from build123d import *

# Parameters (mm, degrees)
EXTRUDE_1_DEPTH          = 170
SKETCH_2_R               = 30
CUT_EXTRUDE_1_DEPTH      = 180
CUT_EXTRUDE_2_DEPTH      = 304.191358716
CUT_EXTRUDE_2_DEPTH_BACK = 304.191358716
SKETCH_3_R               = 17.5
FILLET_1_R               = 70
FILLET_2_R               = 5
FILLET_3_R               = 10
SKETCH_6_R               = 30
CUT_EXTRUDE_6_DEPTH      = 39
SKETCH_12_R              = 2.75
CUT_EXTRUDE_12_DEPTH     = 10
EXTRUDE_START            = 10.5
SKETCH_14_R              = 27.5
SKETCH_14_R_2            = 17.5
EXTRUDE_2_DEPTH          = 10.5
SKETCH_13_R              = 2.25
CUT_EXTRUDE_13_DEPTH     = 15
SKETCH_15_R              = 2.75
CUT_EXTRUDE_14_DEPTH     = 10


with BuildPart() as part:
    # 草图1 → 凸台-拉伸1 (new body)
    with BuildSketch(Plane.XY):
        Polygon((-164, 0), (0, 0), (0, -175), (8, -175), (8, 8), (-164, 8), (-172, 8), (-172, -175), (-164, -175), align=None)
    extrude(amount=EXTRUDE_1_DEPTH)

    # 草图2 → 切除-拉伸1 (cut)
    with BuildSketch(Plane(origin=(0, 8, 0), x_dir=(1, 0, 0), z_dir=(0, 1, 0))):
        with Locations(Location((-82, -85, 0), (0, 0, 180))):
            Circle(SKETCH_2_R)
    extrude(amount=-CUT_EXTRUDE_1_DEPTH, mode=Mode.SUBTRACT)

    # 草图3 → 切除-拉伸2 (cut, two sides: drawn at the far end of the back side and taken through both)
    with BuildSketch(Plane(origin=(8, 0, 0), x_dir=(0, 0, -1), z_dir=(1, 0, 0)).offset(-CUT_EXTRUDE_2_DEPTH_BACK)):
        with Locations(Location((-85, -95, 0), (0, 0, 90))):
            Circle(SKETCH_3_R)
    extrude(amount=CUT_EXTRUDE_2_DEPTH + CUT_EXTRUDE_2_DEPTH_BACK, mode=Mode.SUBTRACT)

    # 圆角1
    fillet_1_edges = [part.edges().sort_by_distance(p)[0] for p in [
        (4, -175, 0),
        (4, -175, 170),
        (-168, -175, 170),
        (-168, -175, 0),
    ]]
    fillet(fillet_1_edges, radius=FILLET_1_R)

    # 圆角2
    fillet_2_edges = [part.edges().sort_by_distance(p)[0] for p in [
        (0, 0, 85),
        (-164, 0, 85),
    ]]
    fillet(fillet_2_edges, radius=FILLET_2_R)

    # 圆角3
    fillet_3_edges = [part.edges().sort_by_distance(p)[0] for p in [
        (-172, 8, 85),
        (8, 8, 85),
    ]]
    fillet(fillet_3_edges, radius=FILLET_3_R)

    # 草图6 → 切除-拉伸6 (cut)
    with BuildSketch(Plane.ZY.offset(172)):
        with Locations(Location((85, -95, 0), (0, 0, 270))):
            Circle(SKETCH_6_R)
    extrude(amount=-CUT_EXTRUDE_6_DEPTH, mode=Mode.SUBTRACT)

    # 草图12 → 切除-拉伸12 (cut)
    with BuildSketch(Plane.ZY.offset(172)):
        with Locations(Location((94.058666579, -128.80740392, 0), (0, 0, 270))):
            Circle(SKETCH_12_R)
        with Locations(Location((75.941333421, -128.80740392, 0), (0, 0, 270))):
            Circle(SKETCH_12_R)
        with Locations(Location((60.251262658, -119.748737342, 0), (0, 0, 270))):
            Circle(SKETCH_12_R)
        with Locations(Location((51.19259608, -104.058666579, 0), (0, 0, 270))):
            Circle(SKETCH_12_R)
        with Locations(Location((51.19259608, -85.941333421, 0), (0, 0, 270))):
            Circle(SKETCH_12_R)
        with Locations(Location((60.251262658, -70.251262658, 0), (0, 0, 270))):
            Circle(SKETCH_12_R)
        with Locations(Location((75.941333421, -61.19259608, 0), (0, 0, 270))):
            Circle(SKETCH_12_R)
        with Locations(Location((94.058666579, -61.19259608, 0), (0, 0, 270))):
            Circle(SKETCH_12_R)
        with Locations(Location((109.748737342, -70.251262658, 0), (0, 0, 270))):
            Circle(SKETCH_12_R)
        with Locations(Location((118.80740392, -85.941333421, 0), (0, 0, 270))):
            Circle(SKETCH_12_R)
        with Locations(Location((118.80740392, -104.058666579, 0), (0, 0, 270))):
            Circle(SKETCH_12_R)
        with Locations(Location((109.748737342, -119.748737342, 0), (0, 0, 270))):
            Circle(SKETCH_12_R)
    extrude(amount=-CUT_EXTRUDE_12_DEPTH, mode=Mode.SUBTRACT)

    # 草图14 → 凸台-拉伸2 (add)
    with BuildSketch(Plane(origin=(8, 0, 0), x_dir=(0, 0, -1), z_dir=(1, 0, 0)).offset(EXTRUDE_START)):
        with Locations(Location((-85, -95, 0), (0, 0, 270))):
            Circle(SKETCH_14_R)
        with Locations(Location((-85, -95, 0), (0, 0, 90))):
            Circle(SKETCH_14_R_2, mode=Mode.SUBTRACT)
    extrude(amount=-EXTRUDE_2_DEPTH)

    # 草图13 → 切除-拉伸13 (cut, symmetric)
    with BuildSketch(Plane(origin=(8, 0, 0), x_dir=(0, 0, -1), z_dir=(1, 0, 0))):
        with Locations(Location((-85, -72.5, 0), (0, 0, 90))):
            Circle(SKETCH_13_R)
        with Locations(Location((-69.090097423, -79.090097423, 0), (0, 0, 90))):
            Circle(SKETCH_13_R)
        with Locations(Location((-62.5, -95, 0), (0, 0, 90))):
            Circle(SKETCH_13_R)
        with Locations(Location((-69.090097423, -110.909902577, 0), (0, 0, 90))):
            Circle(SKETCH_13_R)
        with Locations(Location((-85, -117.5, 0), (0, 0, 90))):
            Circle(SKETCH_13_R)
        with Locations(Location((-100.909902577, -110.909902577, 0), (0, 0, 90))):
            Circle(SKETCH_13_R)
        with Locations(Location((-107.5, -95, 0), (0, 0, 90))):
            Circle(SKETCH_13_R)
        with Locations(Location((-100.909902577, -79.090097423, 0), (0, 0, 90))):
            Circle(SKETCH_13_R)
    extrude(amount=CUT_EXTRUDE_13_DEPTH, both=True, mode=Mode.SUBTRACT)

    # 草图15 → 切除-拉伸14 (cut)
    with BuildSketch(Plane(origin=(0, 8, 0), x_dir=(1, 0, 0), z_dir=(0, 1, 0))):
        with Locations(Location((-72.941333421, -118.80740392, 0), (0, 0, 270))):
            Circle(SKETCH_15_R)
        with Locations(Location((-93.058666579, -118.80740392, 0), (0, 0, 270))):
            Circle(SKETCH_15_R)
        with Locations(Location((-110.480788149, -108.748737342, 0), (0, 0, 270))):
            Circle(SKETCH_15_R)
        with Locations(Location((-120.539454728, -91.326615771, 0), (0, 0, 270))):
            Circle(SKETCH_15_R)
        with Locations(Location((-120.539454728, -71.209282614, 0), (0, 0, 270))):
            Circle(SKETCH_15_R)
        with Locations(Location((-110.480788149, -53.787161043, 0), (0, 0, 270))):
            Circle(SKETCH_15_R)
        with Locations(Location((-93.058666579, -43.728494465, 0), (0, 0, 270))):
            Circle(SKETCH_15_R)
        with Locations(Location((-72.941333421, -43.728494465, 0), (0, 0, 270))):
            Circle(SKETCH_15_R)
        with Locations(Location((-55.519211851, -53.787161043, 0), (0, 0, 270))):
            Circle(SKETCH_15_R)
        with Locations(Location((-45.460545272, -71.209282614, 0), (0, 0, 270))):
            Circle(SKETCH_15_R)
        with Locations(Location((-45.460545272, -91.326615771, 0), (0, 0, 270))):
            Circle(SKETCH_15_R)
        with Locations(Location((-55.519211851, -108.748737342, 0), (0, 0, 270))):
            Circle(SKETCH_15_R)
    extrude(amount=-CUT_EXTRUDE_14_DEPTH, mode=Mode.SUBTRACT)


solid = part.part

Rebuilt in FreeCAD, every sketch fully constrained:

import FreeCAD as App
import Part
import Sketcher


def edges_at(feature, points):
    """Names of the edges that pass closest to the given points."""
    edges = feature.Shape.Edges
    near = lambda p: min(range(len(edges)), key=lambda i: edges[i].distToShape(Part.Vertex(*p))[0])
    return sorted({f"Edge{near(p) + 1}" for p in points})

doc = App.newDocument("Part")
body = doc.addObject("PartDesign::Body", "Body")

# Sketch on XY plane
sketch1 = body.newObject("Sketcher::SketchObject", "Sketch")
sketch1.AttachmentSupport = (doc.getObject("XY_Plane"), [""])
sketch1.MapMode = "FlatFace"
sketch1.addGeometry([
    Part.LineSegment(App.Vector(-164, 0, 0), App.Vector(0, 0, 0)),  # 0
    Part.LineSegment(App.Vector(0, 0, 0), App.Vector(0, -175, 0)),  # 1
    Part.LineSegment(App.Vector(0, -175, 0), App.Vector(8, -175, 0)),  # 2
    Part.LineSegment(App.Vector(8, -175, 0), App.Vector(8, 8, 0)),  # 3
    Part.LineSegment(App.Vector(8, 8, 0), App.Vector(-172, 8, 0)),  # 4
    Part.LineSegment(App.Vector(-172, 8, 0), App.Vector(-172, -175, 0)),  # 5
    Part.LineSegment(App.Vector(-172, -175, 0), App.Vector(-164, -175, 0)),  # 6
    Part.LineSegment(App.Vector(-164, -175, 0), App.Vector(-164, 0, 0)),  # 7
], False)
sketch1.addConstraint([
    Sketcher.Constraint("Coincident", 0, 2, 1, 1),
    Sketcher.Constraint("Coincident", 1, 2, 2, 1),
    Sketcher.Constraint("Coincident", 2, 2, 3, 1),
    Sketcher.Constraint("Coincident", 3, 2, 4, 1),
    Sketcher.Constraint("Coincident", 4, 2, 5, 1),
    Sketcher.Constraint("Coincident", 5, 2, 6, 1),
    Sketcher.Constraint("Coincident", 6, 2, 7, 1),
    Sketcher.Constraint("Coincident", 7, 2, 0, 1),
    Sketcher.Constraint("Horizontal", 0),
    Sketcher.Constraint("Vertical", 1),
    Sketcher.Constraint("Horizontal", 2),
    Sketcher.Constraint("Vertical", 3),
    Sketcher.Constraint("Horizontal", 4),
    Sketcher.Constraint("Vertical", 5),
    Sketcher.Constraint("Horizontal", 6),
    Sketcher.Constraint("Vertical", 7),
    Sketcher.Constraint("Coincident", 0, 2, -1, 1),
    Sketcher.Constraint("Horizontal", 2, 2, 5, 2),
    Sketcher.Constraint("Equal", 2, 6),
    Sketcher.Constraint("DistanceX", 0, 1, 0, 2, 164.0),
    Sketcher.Constraint("DistanceX", 2, 1, 2, 2, 8.0),
    Sketcher.Constraint("DistanceY", 1, 2, 1, 1, 175.0),
    Sketcher.Constraint("DistanceY", 3, 1, 3, 2, 183.0),
])
pad1 = body.newObject("PartDesign::Pad", "Pad")
pad1.Profile = sketch1
pad1.Length = 170

# Sketch on XZ plane
sketch2 = body.newObject("Sketcher::SketchObject", "Sketch001")
sketch2.AttachmentSupport = (doc.getObject("XZ_Plane"), [""])
sketch2.MapMode = "FlatFace"
sketch2.AttachmentOffset = App.Placement(App.Vector(0, 0, -8), App.Rotation())
sketch2.addGeometry(Part.Circle(App.Vector(-82, 85, 0), App.Vector(0, 0, 1), 30), False)
sketch2.addConstraint([
    Sketcher.Constraint("Diameter", 0, 60.0),
    Sketcher.Constraint("DistanceX", 0, 3, -1, 1, 82.0),
    Sketcher.Constraint("DistanceY", -1, 1, 0, 3, 85.0),
])
pocket1 = body.newObject("PartDesign::Pocket", "Pocket")
pocket1.Profile = sketch2
pocket1.Length = 180
pocket1.Reversed = True

# Sketch on YZ plane
sketch3 = body.newObject("Sketcher::SketchObject", "Sketch002")
sketch3.AttachmentSupport = (doc.getObject("YZ_Plane"), [""])
sketch3.MapMode = "FlatFace"
sketch3.AttachmentOffset = App.Placement(App.Vector(0, 0, 8), App.Rotation())
sketch3.addGeometry(Part.Circle(App.Vector(-95, 85, 0), App.Vector(0, 0, 1), 18), False)
sketch3.addConstraint([
    Sketcher.Constraint("Diameter", 0, 35.0),
    Sketcher.Constraint("DistanceX", 0, 3, -1, 1, 95.0),
    Sketcher.Constraint("DistanceY", -1, 1, 0, 3, 85.0),
])
pocket2 = body.newObject("PartDesign::Pocket", "Pocket001")
pocket2.Profile = sketch3
pocket2.Type = "ThroughAll"
pocket2.Midplane = True
doc.recompute()

fillet = body.newObject("PartDesign::Fillet", "Fillet")
fillet.Base = (pocket2, edges_at(pocket2, [
    (4, -175, 0),
    (4, -175, 170),
    (-168, -175, 170),
    (-168, -175, 0),
]))
fillet.Radius = 70
doc.recompute()

fillet2 = body.newObject("PartDesign::Fillet", "Fillet001")
fillet2.Base = (fillet, edges_at(fillet, [(0, 0, 85), (-164, 0, 85)]))
fillet2.Radius = 5
doc.recompute()

fillet3 = body.newObject("PartDesign::Fillet", "Fillet002")
fillet3.Base = (fillet2, edges_at(fillet2, [(-172, 8, 85), (8, 8, 85)]))
fillet3.Radius = 10

# Sketch on YZ plane
sketch4 = body.newObject("Sketcher::SketchObject", "Sketch003")
sketch4.AttachmentSupport = (doc.getObject("YZ_Plane"), [""])
sketch4.MapMode = "FlatFace"
sketch4.AttachmentOffset = App.Placement(App.Vector(0, 0, -172), App.Rotation())
sketch4.addGeometry(Part.Circle(App.Vector(-95, 85, 0), App.Vector(0, 0, 1), 30), False)
sketch4.addConstraint([
    Sketcher.Constraint("Diameter", 0, 60.0),
    Sketcher.Constraint("DistanceX", 0, 3, -1, 1, 95.0),
    Sketcher.Constraint("DistanceY", -1, 1, 0, 3, 85.0),
])
pocket3 = body.newObject("PartDesign::Pocket", "Pocket002")
pocket3.Profile = sketch4
pocket3.Length = 39
pocket3.Reversed = True

# Sketch on YZ plane
sketch5 = body.newObject("Sketcher::SketchObject", "Sketch004")
sketch5.AttachmentSupport = (doc.getObject("YZ_Plane"), [""])
sketch5.MapMode = "FlatFace"
sketch5.AttachmentOffset = App.Placement(App.Vector(0, 0, -172), App.Rotation())
sketch5.addGeometry([
    Part.Circle(App.Vector(-128.8, 94.1, 0), App.Vector(0, 0, 1), 2.8),  # 0
    Part.Circle(App.Vector(-128.8, 75.9, 0), App.Vector(0, 0, 1), 2.8),  # 1
    Part.Circle(App.Vector(-119.7, 60.3, 0), App.Vector(0, 0, 1), 2.8),  # 2
    Part.Circle(App.Vector(-104.1, 51.2, 0), App.Vector(0, 0, 1), 2.8),  # 3
    Part.Circle(App.Vector(-85.9, 51.2, 0), App.Vector(0, 0, 1), 2.8),  # 4
    Part.Circle(App.Vector(-70.3, 60.3, 0), App.Vector(0, 0, 1), 2.8),  # 5
    Part.Circle(App.Vector(-61.2, 75.9, 0), App.Vector(0, 0, 1), 2.8),  # 6
    Part.Circle(App.Vector(-61.2, 94.1, 0), App.Vector(0, 0, 1), 2.8),  # 7
    Part.Circle(App.Vector(-70.3, 109.7, 0), App.Vector(0, 0, 1), 2.8),  # 8
    Part.Circle(App.Vector(-85.9, 118.8, 0), App.Vector(0, 0, 1), 2.8),  # 9
    Part.Circle(App.Vector(-104.1, 118.8, 0), App.Vector(0, 0, 1), 2.8),  # 10
    Part.Circle(App.Vector(-119.7, 109.7, 0), App.Vector(0, 0, 1), 2.8),  # 11
], False)
sketch5.addConstraint([
    Sketcher.Constraint("Equal", 0, 1),
    Sketcher.Constraint("Equal", 1, 2),
    Sketcher.Constraint("Equal", 2, 3),
    Sketcher.Constraint("Equal", 3, 4),
    Sketcher.Constraint("Equal", 4, 5),
    Sketcher.Constraint("Equal", 5, 6),
    Sketcher.Constraint("Equal", 6, 7),
    Sketcher.Constraint("Equal", 7, 8),
    Sketcher.Constraint("Equal", 8, 9),
    Sketcher.Constraint("Equal", 9, 10),
    Sketcher.Constraint("Equal", 10, 11),
    Sketcher.Constraint("Horizontal", 3, 3, 4, 3),
    Sketcher.Constraint("Horizontal", 2, 3, 5, 3),
    Sketcher.Constraint("Horizontal", 1, 3, 6, 3),
    Sketcher.Constraint("Horizontal", 0, 3, 7, 3),
    Sketcher.Constraint("Horizontal", 9, 3, 10, 3),
    Sketcher.Constraint("Horizontal", 8, 3, 11, 3),
    Sketcher.Constraint("Vertical", 0, 3, 1, 3),
    Sketcher.Constraint("Vertical", 6, 3, 7, 3),
    Sketcher.Constraint("Vertical", 5, 3, 8, 3),
    Sketcher.Constraint("Vertical", 4, 3, 9, 3),
    Sketcher.Constraint("Vertical", 3, 3, 10, 3),
    Sketcher.Constraint("Vertical", 2, 3, 11, 3),
    Sketcher.Constraint("Diameter", 0, 5.5),
    Sketcher.Constraint("DistanceY", 2, 3, 1, 3, 15.690071),
    Sketcher.Constraint("DistanceX", 2, 3, 3, 3, 15.690071),
    Sketcher.Constraint("DistanceY", 3, 3, 0, 3, 42.86607),
    Sketcher.Constraint("DistanceX", 1, 3, 4, 3, 42.86607),
    Sketcher.Constraint("DistanceX", 4, 3, 5, 3, 15.690071),
    Sketcher.Constraint("DistanceX", 3, 3, 6, 3, 42.86607),
    Sketcher.Constraint("DistanceY", 7, 3, 8, 3, 15.690071),
    Sketcher.Constraint("DistanceY", 6, 3, 9, 3, 42.86607),
    Sketcher.Constraint("DistanceX", 0, 3, -1, 1, 128.807404),
    Sketcher.Constraint("DistanceY", -1, 1, 0, 3, 94.058667),
    Sketcher.Constraint("DistanceY", -1, 1, 1, 3, 75.941333),
    Sketcher.Constraint("DistanceX", 2, 3, -1, 1, 119.748737),
])
pocket4 = body.newObject("PartDesign::Pocket", "Pocket003")
pocket4.Profile = sketch5
pocket4.Length = 10
pocket4.Reversed = True

# Sketch on YZ plane
sketch6 = body.newObject("Sketcher::SketchObject", "Sketch005")
sketch6.AttachmentSupport = (doc.getObject("YZ_Plane"), [""])
sketch6.MapMode = "FlatFace"
sketch6.AttachmentOffset = App.Placement(App.Vector(0, 0, 18.5), App.Rotation())
sketch6.addGeometry([
    Part.Circle(App.Vector(-95, 85, 0), App.Vector(0, 0, 1), 28),
    Part.Circle(App.Vector(-95, 85, 0), App.Vector(0, 0, 1), 18),
], False)
sketch6.addConstraint([
    Sketcher.Constraint("Coincident", 1, 3, 0, 3),
    Sketcher.Constraint("Diameter", 0, 55.0),
    Sketcher.Constraint("Diameter", 1, 35.0),
    Sketcher.Constraint("DistanceX", 0, 3, -1, 1, 95.0),
    Sketcher.Constraint("DistanceY", -1, 1, 0, 3, 85.0),
])
pad2 = body.newObject("PartDesign::Pad", "Pad001")
pad2.Profile = sketch6
pad2.Length = 10.5
pad2.Reversed = True

# Sketch on YZ plane
sketch7 = body.newObject("Sketcher::SketchObject", "Sketch006")
sketch7.AttachmentSupport = (doc.getObject("YZ_Plane"), [""])
sketch7.MapMode = "FlatFace"
sketch7.AttachmentOffset = App.Placement(App.Vector(0, 0, 8), App.Rotation())
sketch7.addGeometry([
    Part.Circle(App.Vector(-72.5, 85, 0), App.Vector(0, 0, 1), 2.2),  # 0
    Part.Circle(App.Vector(-79.1, 69.1, 0), App.Vector(0, 0, 1), 2.2),  # 1
    Part.Circle(App.Vector(-95, 62.5, 0), App.Vector(0, 0, 1), 2.2),  # 2
    Part.Circle(App.Vector(-110.9, 69.1, 0), App.Vector(0, 0, 1), 2.2),  # 3
    Part.Circle(App.Vector(-117.5, 85, 0), App.Vector(0, 0, 1), 2.2),  # 4
    Part.Circle(App.Vector(-110.9, 100.9, 0), App.Vector(0, 0, 1), 2.2),  # 5
    Part.Circle(App.Vector(-95, 107.5, 0), App.Vector(0, 0, 1), 2.2),  # 6
    Part.Circle(App.Vector(-79.1, 100.9, 0), App.Vector(0, 0, 1), 2.2),  # 7
], False)
sketch7.addConstraint([
    Sketcher.Constraint("Equal", 0, 1),
    Sketcher.Constraint("Equal", 1, 2),
    Sketcher.Constraint("Equal", 2, 3),
    Sketcher.Constraint("Equal", 3, 4),
    Sketcher.Constraint("Equal", 4, 5),
    Sketcher.Constraint("Equal", 5, 6),
    Sketcher.Constraint("Equal", 6, 7),
    Sketcher.Constraint("Horizontal", 1, 3, 3, 3),
    Sketcher.Constraint("Horizontal", 0, 3, 4, 3),
    Sketcher.Constraint("Horizontal", 5, 3, 7, 3),
    Sketcher.Constraint("Vertical", 3, 3, 5, 3),
    Sketcher.Constraint("Vertical", 2, 3, 6, 3),
    Sketcher.Constraint("Vertical", 1, 3, 7, 3),
    Sketcher.Constraint("Diameter", 0, 4.5),
    Sketcher.Constraint("DistanceY", -1, 1, 0, 3, 85.0),
    Sketcher.Constraint("DistanceX", 2, 3, -1, 1, 95.0),
    Sketcher.Constraint("DistanceX", 4, 3, 0, 3, 45.0),
    Sketcher.Constraint("DistanceX", 0, 3, -1, 1, 72.5),
    Sketcher.Constraint("DistanceY", -1, 1, 2, 3, 62.5),
    Sketcher.Constraint("DistanceY", -1, 1, 6, 3, 107.5),
    Sketcher.Constraint("DistanceX", 1, 3, -1, 1, 79.090097),
    Sketcher.Constraint("DistanceY", -1, 1, 1, 3, 69.090097),
    Sketcher.Constraint("DistanceX", 3, 3, -1, 1, 110.909903),
    Sketcher.Constraint("DistanceY", -1, 1, 5, 3, 100.909903),
])
pocket5 = body.newObject("PartDesign::Pocket", "Pocket004")
pocket5.Profile = sketch7
pocket5.Length = 30
pocket5.Midplane = True

# Sketch on XZ plane
sketch8 = body.newObject("Sketcher::SketchObject", "Sketch007")
sketch8.AttachmentSupport = (doc.getObject("XZ_Plane"), [""])
sketch8.MapMode = "FlatFace"
sketch8.AttachmentOffset = App.Placement(App.Vector(0, 0, -8), App.Rotation())
sketch8.addGeometry([
    Part.Circle(App.Vector(-72.9, 118.8, 0), App.Vector(0, 0, 1), 2.8),  # 0
    Part.Circle(App.Vector(-93.1, 118.8, 0), App.Vector(0, 0, 1), 2.8),  # 1
    Part.Circle(App.Vector(-110.5, 108.7, 0), App.Vector(0, 0, 1), 2.8),  # 2
    Part.Circle(App.Vector(-120.5, 91.3, 0), App.Vector(0, 0, 1), 2.8),  # 3
    Part.Circle(App.Vector(-120.5, 71.2, 0), App.Vector(0, 0, 1), 2.8),  # 4
    Part.Circle(App.Vector(-110.5, 53.8, 0), App.Vector(0, 0, 1), 2.8),  # 5
    Part.Circle(App.Vector(-93.1, 43.7, 0), App.Vector(0, 0, 1), 2.8),  # 6
    Part.Circle(App.Vector(-72.9, 43.7, 0), App.Vector(0, 0, 1), 2.8),  # 7
    Part.Circle(App.Vector(-55.5, 53.8, 0), App.Vector(0, 0, 1), 2.8),  # 8
    Part.Circle(App.Vector(-45.5, 71.2, 0), App.Vector(0, 0, 1), 2.8),  # 9
    Part.Circle(App.Vector(-45.5, 91.3, 0), App.Vector(0, 0, 1), 2.8),  # 10
    Part.Circle(App.Vector(-55.5, 108.7, 0), App.Vector(0, 0, 1), 2.8),  # 11
], False)
sketch8.addConstraint([
    Sketcher.Constraint("Equal", 0, 1),
    Sketcher.Constraint("Equal", 1, 2),
    Sketcher.Constraint("Equal", 2, 3),
    Sketcher.Constraint("Equal", 3, 4),
    Sketcher.Constraint("Equal", 4, 5),
    Sketcher.Constraint("Equal", 5, 6),
    Sketcher.Constraint("Equal", 6, 7),
    Sketcher.Constraint("Equal", 7, 8),
    Sketcher.Constraint("Equal", 8, 9),
    Sketcher.Constraint("Equal", 9, 10),
    Sketcher.Constraint("Equal", 10, 11),
    Sketcher.Constraint("Horizontal", 0, 3, 1, 3),
    Sketcher.Constraint("Horizontal", 6, 3, 7, 3),
    Sketcher.Constraint("Horizontal", 5, 3, 8, 3),
    Sketcher.Constraint("Horizontal", 4, 3, 9, 3),
    Sketcher.Constraint("Horizontal", 3, 3, 10, 3),
    Sketcher.Constraint("Horizontal", 2, 3, 11, 3),
    Sketcher.Constraint("Vertical", 3, 3, 4, 3),
    Sketcher.Constraint("Vertical", 2, 3, 5, 3),
    Sketcher.Constraint("Vertical", 1, 3, 6, 3),
    Sketcher.Constraint("Vertical", 0, 3, 7, 3),
    Sketcher.Constraint("Vertical", 9, 3, 10, 3),
    Sketcher.Constraint("Vertical", 8, 3, 11, 3),
    Sketcher.Constraint("Diameter", 0, 5.5),
    Sketcher.Constraint("DistanceX", 2, 3, -1, 1, 110.480788),
    Sketcher.Constraint("DistanceY", -1, 1, 5, 3, 53.787161),
    Sketcher.Constraint("DistanceX", 8, 3, -1, 1, 55.519212),
    Sketcher.Constraint("DistanceX", 2, 3, 1, 3, 17.422122),
    Sketcher.Constraint("DistanceY", 3, 3, 2, 3, 17.422122),
    Sketcher.Constraint("DistanceX", 3, 3, 1, 3, 27.480788),
    Sketcher.Constraint("DistanceY", 3, 3, 1, 3, 27.480788),
    Sketcher.Constraint("DistanceX", 3, 3, 0, 3, 47.598121),
    Sketcher.Constraint("DistanceY", 4, 3, 1, 3, 47.598121),
    Sketcher.Constraint("DistanceY", 5, 3, 4, 3, 17.422122),
    Sketcher.Constraint("DistanceY", 6, 3, 4, 3, 27.480788),
    Sketcher.Constraint("DistanceX", 7, 3, 9, 3, 27.480788),
])
pocket6 = body.newObject("PartDesign::Pocket", "Pocket005")
pocket6.Profile = sketch8
pocket6.Length = 10
pocket6.Reversed = True

doc.recompute()
